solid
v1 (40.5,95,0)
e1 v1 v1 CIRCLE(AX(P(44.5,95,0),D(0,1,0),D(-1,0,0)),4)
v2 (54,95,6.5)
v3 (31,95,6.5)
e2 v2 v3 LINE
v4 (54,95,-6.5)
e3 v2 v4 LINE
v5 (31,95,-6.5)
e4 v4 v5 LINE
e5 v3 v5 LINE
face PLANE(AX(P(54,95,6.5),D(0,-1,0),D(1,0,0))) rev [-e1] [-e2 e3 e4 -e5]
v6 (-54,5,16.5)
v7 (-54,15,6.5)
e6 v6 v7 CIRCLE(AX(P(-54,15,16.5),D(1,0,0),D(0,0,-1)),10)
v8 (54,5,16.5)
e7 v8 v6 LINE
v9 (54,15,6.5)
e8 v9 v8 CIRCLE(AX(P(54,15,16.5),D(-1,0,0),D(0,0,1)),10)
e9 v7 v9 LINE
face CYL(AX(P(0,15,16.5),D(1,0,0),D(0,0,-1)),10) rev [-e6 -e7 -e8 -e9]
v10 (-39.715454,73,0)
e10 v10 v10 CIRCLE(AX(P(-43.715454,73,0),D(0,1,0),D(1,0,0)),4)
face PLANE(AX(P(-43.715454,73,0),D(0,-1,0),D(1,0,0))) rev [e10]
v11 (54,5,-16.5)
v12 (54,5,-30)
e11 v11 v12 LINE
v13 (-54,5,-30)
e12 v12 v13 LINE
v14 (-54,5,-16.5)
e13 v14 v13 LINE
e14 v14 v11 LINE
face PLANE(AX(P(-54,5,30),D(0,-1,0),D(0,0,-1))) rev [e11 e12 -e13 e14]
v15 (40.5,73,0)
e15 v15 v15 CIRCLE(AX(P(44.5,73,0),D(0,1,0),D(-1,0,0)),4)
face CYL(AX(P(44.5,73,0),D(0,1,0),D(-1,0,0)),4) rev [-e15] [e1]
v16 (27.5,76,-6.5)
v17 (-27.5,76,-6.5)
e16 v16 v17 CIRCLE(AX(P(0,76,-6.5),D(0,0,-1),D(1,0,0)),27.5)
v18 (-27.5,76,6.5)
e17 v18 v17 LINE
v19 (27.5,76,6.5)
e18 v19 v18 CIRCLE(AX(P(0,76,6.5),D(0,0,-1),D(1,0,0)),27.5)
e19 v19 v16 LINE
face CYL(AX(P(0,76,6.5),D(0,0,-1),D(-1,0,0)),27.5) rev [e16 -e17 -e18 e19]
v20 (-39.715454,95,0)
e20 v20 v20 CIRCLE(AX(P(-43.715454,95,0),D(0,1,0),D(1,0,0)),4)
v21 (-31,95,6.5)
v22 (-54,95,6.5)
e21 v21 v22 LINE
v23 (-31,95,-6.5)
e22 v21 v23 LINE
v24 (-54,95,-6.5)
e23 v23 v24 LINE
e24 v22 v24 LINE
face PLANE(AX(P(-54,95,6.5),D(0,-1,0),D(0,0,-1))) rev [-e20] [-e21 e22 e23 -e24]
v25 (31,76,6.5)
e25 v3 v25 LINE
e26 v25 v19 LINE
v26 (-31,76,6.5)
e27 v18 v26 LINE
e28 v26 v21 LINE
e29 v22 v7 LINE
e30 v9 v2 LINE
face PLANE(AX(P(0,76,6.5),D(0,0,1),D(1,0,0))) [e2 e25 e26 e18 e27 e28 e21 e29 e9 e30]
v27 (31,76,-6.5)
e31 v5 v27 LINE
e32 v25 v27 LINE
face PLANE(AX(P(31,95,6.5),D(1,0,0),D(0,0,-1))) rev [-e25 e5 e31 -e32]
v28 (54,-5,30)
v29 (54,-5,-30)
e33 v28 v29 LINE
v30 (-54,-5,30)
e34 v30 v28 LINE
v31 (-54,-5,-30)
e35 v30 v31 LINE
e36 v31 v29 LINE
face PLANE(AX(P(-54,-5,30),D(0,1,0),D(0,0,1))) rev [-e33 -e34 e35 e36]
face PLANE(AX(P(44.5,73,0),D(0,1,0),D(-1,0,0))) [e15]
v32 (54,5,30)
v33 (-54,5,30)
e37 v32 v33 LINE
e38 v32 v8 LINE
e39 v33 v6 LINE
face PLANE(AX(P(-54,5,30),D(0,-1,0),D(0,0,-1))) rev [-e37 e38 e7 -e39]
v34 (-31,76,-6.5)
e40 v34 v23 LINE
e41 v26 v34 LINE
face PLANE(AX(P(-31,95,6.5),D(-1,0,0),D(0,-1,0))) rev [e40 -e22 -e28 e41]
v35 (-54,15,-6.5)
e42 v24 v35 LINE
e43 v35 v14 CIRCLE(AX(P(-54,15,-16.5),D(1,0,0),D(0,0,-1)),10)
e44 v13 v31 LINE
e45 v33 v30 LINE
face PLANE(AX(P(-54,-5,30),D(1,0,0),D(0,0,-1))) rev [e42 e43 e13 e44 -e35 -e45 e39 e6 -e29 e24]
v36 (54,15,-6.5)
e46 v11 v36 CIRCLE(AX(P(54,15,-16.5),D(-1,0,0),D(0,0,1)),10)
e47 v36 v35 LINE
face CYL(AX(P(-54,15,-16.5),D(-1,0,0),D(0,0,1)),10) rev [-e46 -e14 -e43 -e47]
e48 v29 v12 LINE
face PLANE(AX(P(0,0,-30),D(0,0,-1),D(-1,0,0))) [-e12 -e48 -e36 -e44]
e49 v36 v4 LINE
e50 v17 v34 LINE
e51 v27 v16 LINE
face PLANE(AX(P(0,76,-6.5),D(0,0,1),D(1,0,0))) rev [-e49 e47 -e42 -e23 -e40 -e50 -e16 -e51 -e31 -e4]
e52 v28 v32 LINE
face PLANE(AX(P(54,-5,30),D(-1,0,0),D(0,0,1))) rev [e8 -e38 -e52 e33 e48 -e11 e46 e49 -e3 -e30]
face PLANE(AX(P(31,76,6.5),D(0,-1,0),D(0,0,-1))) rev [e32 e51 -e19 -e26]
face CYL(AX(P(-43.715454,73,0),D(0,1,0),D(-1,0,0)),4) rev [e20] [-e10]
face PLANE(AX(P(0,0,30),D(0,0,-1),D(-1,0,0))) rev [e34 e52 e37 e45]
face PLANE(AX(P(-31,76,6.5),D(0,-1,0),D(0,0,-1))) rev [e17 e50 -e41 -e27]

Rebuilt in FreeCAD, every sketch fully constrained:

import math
import FreeCAD as App
import Part
import Sketcher

V = App.Vector
Q = App.Units.Quantity


def edges_at(feature, points):
    """Names of the edges that pass closest to the given points."""
    edges = feature.Shape.Edges
    near = lambda p: min(range(len(edges)), key=lambda i: edges[i].distToShape(Part.Vertex(*p))[0])
    return sorted({f"Edge{near(p) + 1}" for p in points})


def add_polygon(sketch, points):
    """Adds a closed chain of lines whose ends are joined by coincident constraints."""
    first, n = sketch.GeometryCount, len(points)
    for a, b in zip(points, points[1:] + points[:1]):
        sketch.addGeometry(Part.LineSegment(App.Vector(*a, 0), App.Vector(*b, 0)), False)
    for i in range(n):
        sketch.addConstraint(Sketcher.Constraint("Coincident", first + i, 2, first + (i + 1) % n, 1))

doc = App.newDocument("Part")
params = doc.addObject("Spreadsheet::Sheet", "Params")
for row, (alias, value) in enumerate([
    ("sketch1_width", "108 mm"),
    ("sketch1_height", "10 mm"),
    ("pad1_length", "60 mm"),
    ("sketch2_radius", "27.5 mm"),
    ("sketch2_width", "108 mm"),
    ("sketch2_width2", "23 mm"),
    ("sketch2_height", "90 mm"),
    ("sketch2_height2", "19 mm"),
    ("pad2_length", "13 mm"),
    ("sketch3_diameter", "8 mm"),
    ("pocket1_length", "22 mm"),
    ("fillet_radius", "10 mm"),
], start=1):
    params.set(f"A{row}", alias)
    params.set(f"B{row}", "=" + value)
    params.setAlias(f"B{row}", alias)

body = doc.addObject("PartDesign::Body", "Body")

# Sketch on XY plane
sketch1 = doc.addObject("Sketcher::SketchObject", "Sketch")
body.addObject(sketch1)
sketch1.AttachmentSupport = (doc.XY_Plane, [""])
sketch1.MapMode = "FlatFace"
add_polygon(sketch1, [(-54, 5), (-54, -5), (54, -5), (54, 5)])  # lines 0-3
sketch1.addConstraint([
    Sketcher.Constraint("Vertical", 0),
    Sketcher.Constraint("Horizontal", 1),
    Sketcher.Constraint("Vertical", 2),
    Sketcher.Constraint("Horizontal", 3),
    Sketcher.Constraint("Symmetric", 0, 2, 2, 2, -1, 1),
    Sketcher.Constraint("DistanceX", 1, 1, 1, 2, Q("108 mm")),
    Sketcher.Constraint("DistanceY", 0, 2, 0, 1, Q("10 mm")),
])
sketch1.setExpression("Constraints[9]", "Params.sketch1_width")
sketch1.setExpression("Constraints[10]", "Params.sketch1_height")
pad1 = doc.addObject("PartDesign::Pad", "Pad")
body.addObject(pad1)
pad1.Profile = sketch1
pad1.setExpression("Length", "Params.pad1_length")
pad1.Midplane = True

# Sketch on XY plane
sketch2 = doc.addObject("Sketcher::SketchObject", "Sketch001")
body.addObject(sketch2)
sketch2.AttachmentSupport = (doc.XY_Plane, [""])
sketch2.MapMode = "FlatFace"
sketch2.addGeometry([
    Part.LineSegment(V(-54, 95, 0), V(-54, 5, 0)),  # 0
    Part.LineSegment(V(-54, 5, 0), V(54, 5, 0)),  # 1
    Part.LineSegment(V(54, 5, 0), V(54, 95, 0)),  # 2
    Part.LineSegment(V(54, 95, 0), V(31, 95, 0)),  # 3
    Part.LineSegment(V(31, 95, 0), V(31, 76, 0)),  # 4
    Part.LineSegment(V(31, 76, 0), V(27.5, 76, 0)),  # 5
    Part.ArcOfCircle(Part.Circle(V(0, 76, 0), V(0, 0, 1), 27.5), math.radians(180), math.radians(360)),  # 6
    Part.LineSegment(V(-27.5, 76, 0), V(-31, 76, 0)),  # 7
    Part.LineSegment(V(-31, 76, 0), V(-31, 95, 0)),  # 8
    Part.LineSegment(V(-31, 95, 0), V(-54, 95, 0)),  # 9
], False)
sketch2.addConstraint([
    Sketcher.Constraint("Coincident", 0, 2, 1, 1),
    Sketcher.Constraint("Coincident", 1, 2, 2, 1),
    Sketcher.Constraint("Coincident", 2, 2, 3, 1),
    Sketcher.Constraint("Coincident", 3, 2, 4, 1),
    Sketcher.Constraint("Coincident", 4, 2, 5, 1),
    Sketcher.Constraint("Coincident", 5, 2, 6, 2),
    Sketcher.Constraint("Coincident", 6, 1, 7, 1),
    Sketcher.Constraint("Coincident", 7, 2, 8, 1),
    Sketcher.Constraint("Coincident", 8, 2, 9, 1),
    Sketcher.Constraint("Coincident", 9, 2, 0, 1),
    Sketcher.Constraint("Vertical", 0),
    Sketcher.Constraint("Horizontal", 1),
    Sketcher.Constraint("Vertical", 2),
    Sketcher.Constraint("Horizontal", 3),
    Sketcher.Constraint("Vertical", 4),
    Sketcher.Constraint("Horizontal", 5),
    Sketcher.Constraint("Horizontal", 7),
    Sketcher.Constraint("Vertical", 8),
    Sketcher.Constraint("Horizontal", 9),
    Sketcher.Constraint("Symmetric", 5, 2, 6, 1, -2),
    Sketcher.Constraint("Symmetric", 3, 2, 8, 2, -2),
    Sketcher.Constraint("Horizontal", 6, 3, 4, 2),
    Sketcher.Constraint("Equal", 3, 9),
    Sketcher.Constraint("Radius", 6, Q("27.5 mm")),
    Sketcher.Constraint("DistanceX", 1, 1, 1, 2, Q("108 mm")),
    Sketcher.Constraint("DistanceX", 3, 2, 3, 1, Q("23 mm")),
    Sketcher.Constraint("DistanceY", 0, 2, 0, 1, Q("90 mm")),
    Sketcher.Constraint("DistanceY", 4, 2, 4, 1, Q("19 mm")),
    Sketcher.Constraint("DistanceY", -1, 1, 6, 3, Q("76 mm")),
])
sketch2.setExpression("Constraints[23]", "Params.sketch2_radius")
sketch2.setExpression("Constraints[24]", "Params.sketch2_width")
sketch2.setExpression("Constraints[25]", "Params.sketch2_width2")
sketch2.setExpression("Constraints[26]", "Params.sketch2_height")
sketch2.setExpression("Constraints[27]", "Params.sketch2_height2")
pad2 = doc.addObject("PartDesign::Pad", "Pad001")
body.addObject(pad2)
pad2.Profile = sketch2
pad2.setExpression("Length", "Params.pad2_length")
pad2.Midplane = True

# Sketch on XZ plane
sketch3 = doc.addObject("Sketcher::SketchObject", "Sketch002")
body.addObject(sketch3)
sketch3.AttachmentSupport = (doc.XZ_Plane, [""])
sketch3.MapMode = "FlatFace"
sketch3.AttachmentOffset = App.Placement(V(0, 0, -95), App.Rotation())
sketch3.addGeometry([
    Part.Circle(V(44.5, 0, 0), V(0, 0, 1), 4),
    Part.Circle(V(-43.7, 0, 0), V(0, 0, 1), 4),
], False)
sketch3.addConstraint([
    Sketcher.Constraint("Equal", 0, 1),
    Sketcher.Constraint("PointOnObject", 0, 3, -1),
    Sketcher.Constraint("PointOnObject", 1, 3, -1),
    Sketcher.Constraint("Diameter", 0, Q("8 mm")),
    Sketcher.Constraint("DistanceX", -1, 1, 0, 3, Q("44.5 mm")),
    Sketcher.Constraint("DistanceX", 1, 3, -1, 1, Q("43.715454 mm")),
])
sketch3.setExpression("Constraints[3]", "Params.sketch3_diameter")
pocket1 = doc.addObject("PartDesign::Pocket", "Pocket")
body.addObject(pocket1)
pocket1.Profile = sketch3
pocket1.setExpression("Length", "Params.pocket1_length")
pocket1.Reversed = True
doc.recompute()

fillet = doc.addObject("PartDesign::Fillet", "Fillet")
body.addObject(fillet)
fillet.Base = (pocket1, edges_at(pocket1, [(0, 5, -6.5), (0, 5, 6.5)]))
fillet.setExpression("Radius", "Params.fillet_radius")

doc.recompute()
